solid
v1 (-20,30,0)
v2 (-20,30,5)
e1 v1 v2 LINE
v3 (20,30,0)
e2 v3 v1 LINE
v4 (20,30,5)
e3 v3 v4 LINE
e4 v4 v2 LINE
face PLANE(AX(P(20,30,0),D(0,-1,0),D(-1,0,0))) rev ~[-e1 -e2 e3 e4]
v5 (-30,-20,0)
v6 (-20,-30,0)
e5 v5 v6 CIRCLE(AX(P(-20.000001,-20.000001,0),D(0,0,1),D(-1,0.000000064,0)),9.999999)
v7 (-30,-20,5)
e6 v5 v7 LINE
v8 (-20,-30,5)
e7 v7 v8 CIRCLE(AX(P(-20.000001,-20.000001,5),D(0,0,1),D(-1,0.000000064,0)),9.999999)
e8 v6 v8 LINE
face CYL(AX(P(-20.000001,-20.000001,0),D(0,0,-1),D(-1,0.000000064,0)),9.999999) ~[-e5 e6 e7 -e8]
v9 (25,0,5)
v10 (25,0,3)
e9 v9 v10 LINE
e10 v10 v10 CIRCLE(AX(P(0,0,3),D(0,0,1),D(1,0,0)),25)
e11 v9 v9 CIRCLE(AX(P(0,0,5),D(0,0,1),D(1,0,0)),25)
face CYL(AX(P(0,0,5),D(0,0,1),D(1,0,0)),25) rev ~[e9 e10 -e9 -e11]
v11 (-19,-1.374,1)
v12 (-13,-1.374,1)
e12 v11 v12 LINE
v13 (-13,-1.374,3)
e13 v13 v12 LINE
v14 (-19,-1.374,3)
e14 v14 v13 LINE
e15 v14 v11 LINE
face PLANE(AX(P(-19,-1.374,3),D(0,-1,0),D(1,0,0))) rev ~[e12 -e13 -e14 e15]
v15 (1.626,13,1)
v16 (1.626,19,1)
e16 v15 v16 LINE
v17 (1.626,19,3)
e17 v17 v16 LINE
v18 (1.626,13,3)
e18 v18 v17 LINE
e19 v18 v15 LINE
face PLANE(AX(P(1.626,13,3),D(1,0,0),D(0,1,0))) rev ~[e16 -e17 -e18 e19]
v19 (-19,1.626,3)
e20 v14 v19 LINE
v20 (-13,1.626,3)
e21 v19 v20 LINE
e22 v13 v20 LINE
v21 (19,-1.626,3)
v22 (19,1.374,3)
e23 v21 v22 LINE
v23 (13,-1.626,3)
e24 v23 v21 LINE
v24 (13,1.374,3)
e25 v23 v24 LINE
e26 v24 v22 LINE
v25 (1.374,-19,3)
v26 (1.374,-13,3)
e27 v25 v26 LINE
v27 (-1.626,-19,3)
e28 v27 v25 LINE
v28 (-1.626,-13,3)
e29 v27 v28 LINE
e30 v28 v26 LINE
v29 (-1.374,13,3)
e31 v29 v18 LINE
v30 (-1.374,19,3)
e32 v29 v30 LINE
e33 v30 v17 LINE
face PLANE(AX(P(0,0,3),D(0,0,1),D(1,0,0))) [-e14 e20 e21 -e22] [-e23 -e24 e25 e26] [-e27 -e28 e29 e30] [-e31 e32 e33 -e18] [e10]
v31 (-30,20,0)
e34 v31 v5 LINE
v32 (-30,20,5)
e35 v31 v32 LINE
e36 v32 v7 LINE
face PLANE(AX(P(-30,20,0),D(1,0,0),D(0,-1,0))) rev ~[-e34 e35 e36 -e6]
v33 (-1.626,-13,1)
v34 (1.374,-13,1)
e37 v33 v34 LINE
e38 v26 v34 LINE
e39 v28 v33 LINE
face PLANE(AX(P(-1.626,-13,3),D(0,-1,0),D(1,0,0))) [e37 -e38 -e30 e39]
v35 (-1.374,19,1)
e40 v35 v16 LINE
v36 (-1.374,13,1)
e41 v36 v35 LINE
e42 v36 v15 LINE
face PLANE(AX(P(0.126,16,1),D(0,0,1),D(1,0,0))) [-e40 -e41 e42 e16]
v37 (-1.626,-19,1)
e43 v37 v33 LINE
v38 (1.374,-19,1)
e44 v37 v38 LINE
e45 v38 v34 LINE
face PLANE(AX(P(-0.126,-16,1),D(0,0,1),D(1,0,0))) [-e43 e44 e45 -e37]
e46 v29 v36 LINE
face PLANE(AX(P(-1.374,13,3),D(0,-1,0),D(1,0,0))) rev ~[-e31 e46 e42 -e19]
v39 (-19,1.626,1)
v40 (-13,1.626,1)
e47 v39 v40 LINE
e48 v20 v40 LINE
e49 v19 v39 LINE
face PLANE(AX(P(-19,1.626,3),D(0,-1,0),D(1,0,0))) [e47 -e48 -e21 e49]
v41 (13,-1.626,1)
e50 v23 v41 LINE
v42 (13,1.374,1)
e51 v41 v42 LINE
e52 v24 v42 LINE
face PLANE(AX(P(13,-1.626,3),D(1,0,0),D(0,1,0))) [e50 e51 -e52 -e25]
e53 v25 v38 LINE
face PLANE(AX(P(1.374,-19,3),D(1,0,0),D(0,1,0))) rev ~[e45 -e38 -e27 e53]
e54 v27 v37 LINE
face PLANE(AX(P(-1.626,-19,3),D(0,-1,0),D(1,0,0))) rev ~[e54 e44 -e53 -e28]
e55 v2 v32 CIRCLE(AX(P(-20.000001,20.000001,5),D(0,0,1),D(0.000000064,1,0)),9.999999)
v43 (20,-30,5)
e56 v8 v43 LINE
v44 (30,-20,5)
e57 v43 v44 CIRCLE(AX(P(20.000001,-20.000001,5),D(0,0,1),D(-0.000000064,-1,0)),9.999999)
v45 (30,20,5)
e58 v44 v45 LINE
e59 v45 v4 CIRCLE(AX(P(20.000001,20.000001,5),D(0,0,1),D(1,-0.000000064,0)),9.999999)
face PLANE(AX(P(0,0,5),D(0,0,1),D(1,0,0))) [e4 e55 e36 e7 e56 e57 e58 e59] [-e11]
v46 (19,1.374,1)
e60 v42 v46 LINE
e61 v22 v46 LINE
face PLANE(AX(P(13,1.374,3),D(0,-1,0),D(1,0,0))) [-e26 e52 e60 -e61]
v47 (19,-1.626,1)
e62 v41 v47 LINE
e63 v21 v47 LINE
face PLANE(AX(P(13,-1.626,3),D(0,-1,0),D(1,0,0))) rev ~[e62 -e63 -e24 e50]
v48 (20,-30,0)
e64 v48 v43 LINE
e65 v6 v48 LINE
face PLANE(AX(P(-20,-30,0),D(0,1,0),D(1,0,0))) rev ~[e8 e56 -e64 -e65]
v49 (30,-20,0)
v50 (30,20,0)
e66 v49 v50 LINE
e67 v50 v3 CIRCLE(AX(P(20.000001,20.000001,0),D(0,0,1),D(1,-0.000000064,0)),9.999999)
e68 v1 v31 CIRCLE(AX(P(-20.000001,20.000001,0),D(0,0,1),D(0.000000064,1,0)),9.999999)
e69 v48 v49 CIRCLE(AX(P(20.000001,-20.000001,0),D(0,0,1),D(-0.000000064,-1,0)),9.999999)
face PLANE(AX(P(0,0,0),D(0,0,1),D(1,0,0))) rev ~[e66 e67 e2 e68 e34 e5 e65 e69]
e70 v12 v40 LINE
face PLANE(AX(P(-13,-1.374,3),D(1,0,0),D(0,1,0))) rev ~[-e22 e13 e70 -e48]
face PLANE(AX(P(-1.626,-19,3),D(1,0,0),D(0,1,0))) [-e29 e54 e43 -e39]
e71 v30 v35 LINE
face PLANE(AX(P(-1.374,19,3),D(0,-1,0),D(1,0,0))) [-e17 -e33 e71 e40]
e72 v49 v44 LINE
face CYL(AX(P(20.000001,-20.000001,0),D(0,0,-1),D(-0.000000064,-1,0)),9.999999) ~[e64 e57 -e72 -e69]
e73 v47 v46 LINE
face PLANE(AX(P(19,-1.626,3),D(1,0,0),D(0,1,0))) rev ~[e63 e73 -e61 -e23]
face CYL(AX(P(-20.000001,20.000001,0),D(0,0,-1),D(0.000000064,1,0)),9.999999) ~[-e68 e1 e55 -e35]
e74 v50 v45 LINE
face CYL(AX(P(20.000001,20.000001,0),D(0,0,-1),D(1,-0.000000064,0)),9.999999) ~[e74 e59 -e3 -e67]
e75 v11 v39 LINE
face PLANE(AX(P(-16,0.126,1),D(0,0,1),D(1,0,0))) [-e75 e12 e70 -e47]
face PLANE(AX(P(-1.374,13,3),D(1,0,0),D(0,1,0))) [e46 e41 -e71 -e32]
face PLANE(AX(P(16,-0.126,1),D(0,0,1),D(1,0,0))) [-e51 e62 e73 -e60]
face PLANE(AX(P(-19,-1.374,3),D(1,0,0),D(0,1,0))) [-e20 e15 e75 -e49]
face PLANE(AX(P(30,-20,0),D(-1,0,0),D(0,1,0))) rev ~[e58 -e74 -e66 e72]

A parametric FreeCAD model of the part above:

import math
import FreeCAD as App
import Part
import Sketcher

V = App.Vector

doc = App.newDocument("Part")
params = doc.addObject("Spreadsheet::Sheet", "Params")
for row, (alias, value) in enumerate([
    ("sketch1_radius", "9.999999 mm"),
    ("sketch1_width", "40 mm"),
    ("pad1_length", "5 mm"),
    ("sketch2_diameter", "50 mm"),
    ("pocket1_length", "2 mm"),
    ("sketch3_width", "3 mm"),
    ("sketch3_width2", "6 mm"),
    ("pocket2_length", "2 mm"),
], start=1):
    params.set(f"A{row}", alias)
    params.set(f"B{row}", "=" + value)
    params.setAlias(f"B{row}", alias)

body = doc.addObject("PartDesign::Body", "Body")

sketch1 = body.newObject("Sketcher::SketchObject", "Sketch")
sketch1.AttachmentSupport = (doc.getObject("XY_Plane"), [""])
sketch1.MapMode = "FlatFace"
sketch1.addGeometry(Part.LineSegment(V(20, 30, 0), V(-20, 30, 0)), False)
sketch1.addGeometry(Part.ArcOfCircle(Part.Circle(V(-20.000001, 20.000001, 0), V(0, 0, 1), 9.999999), math.radians(89.999996), math.radians(180.000004)), False)
sketch1.addGeometry(Part.LineSegment(V(-30, 20, 0), V(-30, -20, 0)), False)
sketch1.addGeometry(Part.ArcOfCircle(Part.Circle(V(-20.000001, -20.000001, 0), V(0, 0, 1), 9.999999), math.radians(179.999996), math.radians(270.000004)), False)
sketch1.addGeometry(Part.LineSegment(V(-20, -30, 0), V(20, -30, 0)), False)
sketch1.addGeometry(Part.ArcOfCircle(Part.Circle(V(20.000001, -20.000001, 0), V(0, 0, 1), 9.999999), math.radians(-90.000004), math.radians(0.000004)), False)
sketch1.addGeometry(Part.LineSegment(V(30, -20, 0), V(30, 20, 0)), False)
sketch1.addGeometry(Part.ArcOfCircle(Part.Circle(V(20.000001, 20.000001, 0), V(0, 0, 1), 9.999999), math.radians(-0.000004), math.radians(90.000004)), False)
sketch1.addConstraint(Sketcher.Constraint("Tangent", 0, 2, 1, 1))
sketch1.addConstraint(Sketcher.Constraint("Tangent", 1, 2, 2, 1))
sketch1.addConstraint(Sketcher.Constraint("Tangent", 2, 2, 3, 1))
sketch1.addConstraint(Sketcher.Constraint("Tangent", 3, 2, 4, 1))
sketch1.addConstraint(Sketcher.Constraint("Tangent", 4, 2, 5, 1))
sketch1.addConstraint(Sketcher.Constraint("Tangent", 5, 2, 6, 1))
sketch1.addConstraint(Sketcher.Constraint("Tangent", 6, 2, 7, 1))
sketch1.addConstraint(Sketcher.Constraint("Tangent", 7, 2, 0, 1))
sketch1.addConstraint(Sketcher.Constraint("Horizontal", 0))
sketch1.addConstraint(Sketcher.Constraint("Vertical", 2))
sketch1.addConstraint(Sketcher.Constraint("Horizontal", 4))
sketch1.addConstraint(Sketcher.Constraint("Vertical", 6))
sketch1.addConstraint(Sketcher.Constraint("Equal", 1, 3))
sketch1.addConstraint(Sketcher.Constraint("Equal", 3, 5))
sketch1.addConstraint(Sketcher.Constraint("Equal", 5, 7))
sketch1.addConstraint(Sketcher.Constraint("Symmetric", 1, 3, 5, 3, -1, 1))
sketch1.addConstraint(Sketcher.Constraint("Equal", 4, 2))
sketch1.addConstraint(Sketcher.Constraint("Radius", 1, 9.999999))
sketch1.addConstraint(Sketcher.Constraint("DistanceX", 0, 2, 0, 1, 40.0))
sketch1.setExpression("Constraints[17]", "Params.sketch1_radius")
sketch1.setExpression("Constraints[18]", "Params.sketch1_width")
pad1 = body.newObject("PartDesign::Pad", "Pad")
pad1.Profile = sketch1
pad1.setExpression("Length", "Params.pad1_length")

sketch2 = body.newObject("Sketcher::SketchObject", "Sketch001")
sketch2.AttachmentSupport = (doc.getObject("XY_Plane"), [""])
sketch2.MapMode = "FlatFace"
sketch2.AttachmentOffset = App.Placement(V(0, 0, 5), App.Rotation())
sketch2.addGeometry(Part.Circle(V(0, 0, 0), V(0, 0, 1), 25), False)
sketch2.addConstraint(Sketcher.Constraint("Coincident", 0, 3, -1, 1))
sketch2.addConstraint(Sketcher.Constraint("Diameter", 0, 50.0))
sketch2.setExpression("Constraints[1]", "Params.sketch2_diameter")
pocket1 = body.newObject("PartDesign::Pocket", "Pocket")
pocket1.Profile = sketch2
pocket1.setExpression("Length", "Params.pocket1_length")

sketch3 = body.newObject("Sketcher::SketchObject", "Sketch002")
sketch3.AttachmentSupport = (doc.getObject("XY_Plane"), [""])
sketch3.MapMode = "FlatFace"
sketch3.AttachmentOffset = App.Placement(V(0, 0, 3), App.Rotation())
sketch3.addGeometry(Part.LineSegment(V(-1.374, 19, 0), V(-1.374, 13, 0)), False)
sketch3.addGeometry(Part.LineSegment(V(-1.374, 13, 0), V(1.626, 13, 0)), False)
sketch3.addGeometry(Part.LineSegment(V(1.626, 13, 0), V(1.626, 19, 0)), False)
sketch3.addGeometry(Part.LineSegment(V(1.626, 19, 0), V(-1.374, 19, 0)), False)
sketch3.addGeometry(Part.LineSegment(V(-19, 1.626, 0), V(-19, -1.374, 0)), False)
sketch3.addGeometry(Part.LineSegment(V(-19, -1.374, 0), V(-13, -1.374, 0)), False)
sketch3.addGeometry(Part.LineSegment(V(-13, -1.374, 0), V(-13, 1.626, 0)), False)
sketch3.addGeometry(Part.LineSegment(V(-13, 1.626, 0), V(-19, 1.626, 0)), False)
sketch3.addGeometry(Part.LineSegment(V(13, 1.374, 0), V(13, -1.626, 0)), False)
sketch3.addGeometry(Part.LineSegment(V(13, -1.626, 0), V(19, -1.626, 0)), False)
sketch3.addGeometry(Part.LineSegment(V(19, -1.626, 0), V(19, 1.374, 0)), False)
sketch3.addGeometry(Part.LineSegment(V(19, 1.374, 0), V(13, 1.374, 0)), False)
sketch3.addGeometry(Part.LineSegment(V(-1.626, -13, 0), V(-1.626, -19, 0)), False)
sketch3.addGeometry(Part.LineSegment(V(-1.626, -19, 0), V(1.374, -19, 0)), False)
sketch3.addGeometry(Part.LineSegment(V(1.374, -19, 0), V(1.374, -13, 0)), False)
sketch3.addGeometry(Part.LineSegment(V(1.374, -13, 0), V(-1.626, -13, 0)), False)
sketch3.addConstraint(Sketcher.Constraint("Coincident", 0, 2, 1, 1))
sketch3.addConstraint(Sketcher.Constraint("Coincident", 1, 2, 2, 1))
sketch3.addConstraint(Sketcher.Constraint("Coincident", 2, 2, 3, 1))
sketch3.addConstraint(Sketcher.Constraint("Coincident", 3, 2, 0, 1))
sketch3.addConstraint(Sketcher.Constraint("Coincident", 4, 2, 5, 1))
sketch3.addConstraint(Sketcher.Constraint("Coincident", 5, 2, 6, 1))
sketch3.addConstraint(Sketcher.Constraint("Coincident", 6, 2, 7, 1))
sketch3.addConstraint(Sketcher.Constraint("Coincident", 7, 2, 4, 1))
sketch3.addConstraint(Sketcher.Constraint("Coincident", 8, 2, 9, 1))
sketch3.addConstraint(Sketcher.Constraint("Coincident", 9, 2, 10, 1))
sketch3.addConstraint(Sketcher.Constraint("Coincident", 10, 2, 11, 1))
sketch3.addConstraint(Sketcher.Constraint("Coincident", 11, 2, 8, 1))
sketch3.addConstraint(Sketcher.Constraint("Coincident", 12, 2, 13, 1))
sketch3.addConstraint(Sketcher.Constraint("Coincident", 13, 2, 14, 1))
sketch3.addConstraint(Sketcher.Constraint("Coincident", 14, 2, 15, 1))
sketch3.addConstraint(Sketcher.Constraint("Coincident", 15, 2, 12, 1))
sketch3.addConstraint(Sketcher.Constraint("Vertical", 0))
sketch3.addConstraint(Sketcher.Constraint("Horizontal", 1))
sketch3.addConstraint(Sketcher.Constraint("Vertical", 2))
sketch3.addConstraint(Sketcher.Constraint("Horizontal", 3))
sketch3.addConstraint(Sketcher.Constraint("Vertical", 4))
sketch3.addConstraint(Sketcher.Constraint("Horizontal", 5))
sketch3.addConstraint(Sketcher.Constraint("Vertical", 6))
sketch3.addConstraint(Sketcher.Constraint("Horizontal", 7))
sketch3.addConstraint(Sketcher.Constraint("Vertical", 8))
sketch3.addConstraint(Sketcher.Constraint("Horizontal", 9))
sketch3.addConstraint(Sketcher.Constraint("Vertical", 10))
sketch3.addConstraint(Sketcher.Constraint("Horizontal", 11))
sketch3.addConstraint(Sketcher.Constraint("Vertical", 12))
sketch3.addConstraint(Sketcher.Constraint("Horizontal", 13))
sketch3.addConstraint(Sketcher.Constraint("Vertical", 14))
sketch3.addConstraint(Sketcher.Constraint("Horizontal", 15))
sketch3.addConstraint(Sketcher.Constraint("Symmetric", 6, 2, 8, 2, -1, 1))
sketch3.addConstraint(Sketcher.Constraint("Symmetric", 4, 2, 10, 2, -1, 1))
sketch3.addConstraint(Sketcher.Constraint("Symmetric", 2, 2, 12, 2, -1, 1))
sketch3.addConstraint(Sketcher.Constraint("Symmetric", 0, 2, 14, 2, -1, 1))
sketch3.addConstraint(Sketcher.Constraint("Equal", 11, 0))
sketch3.addConstraint(Sketcher.Constraint("Equal", 15, 4))
sketch3.addConstraint(Sketcher.Constraint("DistanceX", 1, 1, 1, 2, 3.0))
sketch3.addConstraint(Sketcher.Constraint("DistanceX", 5, 1, 5, 2, 6.0))
sketch3.addConstraint(Sketcher.Constraint("DistanceY", -1, 1, 0, 2, 13.0))
sketch3.addConstraint(Sketcher.Constraint("DistanceX", 4, 2, -1, 1, 19.0))
sketch3.addConstraint(Sketcher.Constraint("DistanceX", 0, 2, -1, 1, 1.374))
sketch3.addConstraint(Sketcher.Constraint("DistanceY", 4, 2, -1, 1, 1.374))
sketch3.setExpression("Constraints[38]", "Params.sketch3_width")
sketch3.setExpression("Constraints[39]", "Params.sketch3_width2")
pocket2 = body.newObject("PartDesign::Pocket", "Pocket001")
pocket2.Profile = sketch3
pocket2.setExpression("Length", "Params.pocket2_length")

doc.recompute()
